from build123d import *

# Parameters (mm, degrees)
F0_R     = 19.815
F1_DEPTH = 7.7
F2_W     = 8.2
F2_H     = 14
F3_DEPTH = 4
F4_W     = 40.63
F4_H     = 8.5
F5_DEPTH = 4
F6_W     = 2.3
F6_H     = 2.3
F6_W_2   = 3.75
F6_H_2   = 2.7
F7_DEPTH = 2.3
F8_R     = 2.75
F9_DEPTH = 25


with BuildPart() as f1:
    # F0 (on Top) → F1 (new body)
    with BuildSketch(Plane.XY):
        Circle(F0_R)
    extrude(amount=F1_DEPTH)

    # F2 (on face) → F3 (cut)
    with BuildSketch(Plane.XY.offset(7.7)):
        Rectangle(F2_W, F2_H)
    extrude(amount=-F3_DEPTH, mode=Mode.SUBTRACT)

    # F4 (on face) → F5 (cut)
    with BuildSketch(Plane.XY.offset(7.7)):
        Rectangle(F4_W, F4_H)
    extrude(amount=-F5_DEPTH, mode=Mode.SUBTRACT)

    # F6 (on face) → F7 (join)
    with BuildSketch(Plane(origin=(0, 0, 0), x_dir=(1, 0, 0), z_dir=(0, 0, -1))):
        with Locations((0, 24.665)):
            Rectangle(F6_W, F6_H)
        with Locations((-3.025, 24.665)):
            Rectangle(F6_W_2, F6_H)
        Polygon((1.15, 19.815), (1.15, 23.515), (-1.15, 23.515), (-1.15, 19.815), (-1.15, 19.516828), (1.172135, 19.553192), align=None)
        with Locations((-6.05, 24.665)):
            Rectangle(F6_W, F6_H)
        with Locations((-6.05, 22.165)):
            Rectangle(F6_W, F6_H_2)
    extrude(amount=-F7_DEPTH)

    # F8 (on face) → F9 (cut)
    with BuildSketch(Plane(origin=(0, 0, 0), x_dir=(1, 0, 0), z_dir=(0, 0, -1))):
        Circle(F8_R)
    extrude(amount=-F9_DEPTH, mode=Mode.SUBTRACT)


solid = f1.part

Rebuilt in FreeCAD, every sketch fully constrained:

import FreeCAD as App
import Part
import Sketcher

V = App.Vector
Q = App.Units.Quantity


def add_polygon(sketch, points):
    """Adds a closed chain of lines whose ends are joined by coincident constraints."""
    first, n = sketch.GeometryCount, len(points)
    for a, b in zip(points, points[1:] + points[:1]):
        sketch.addGeometry(Part.LineSegment(App.Vector(*a, 0), App.Vector(*b, 0)), False)
    for i in range(n):
        sketch.addConstraint(Sketcher.Constraint("Coincident", first + i, 2, first + (i + 1) % n, 1))

doc = App.newDocument("Part")
body = doc.addObject("PartDesign::Body", "Body")

# Sketch on XY plane
sketch1 = body.newObject("Sketcher::SketchObject", "Sketch")
sketch1.AttachmentSupport = (doc.getObject("XY_Plane"), [""])
sketch1.MapMode = "FlatFace"
sketch1.addGeometry(Part.Circle(V(0, 0, 0), V(0, 0, 1), 19.815), False)
sketch1.addConstraint(Sketcher.Constraint("Coincident", 0, 3, -1, 1))
sketch1.addConstraint(Sketcher.Constraint("Diameter", 0, Q("39.63 mm")))
pad1 = body.newObject("PartDesign::Pad", "Pad")
pad1.Profile = sketch1
pad1.Length = 7.7

# Sketch on XY plane
sketch2 = body.newObject("Sketcher::SketchObject", "Sketch001")
sketch2.AttachmentSupport = (doc.getObject("XY_Plane"), [""])
sketch2.MapMode = "FlatFace"
sketch2.AttachmentOffset = App.Placement(V(0, 0, 7.7), App.Rotation())
add_polygon(sketch2, [(-4.1, 7), (-4.1, -7), (4.1, -7), (4.1, 7)])  # lines 0-3
sketch2.addConstraint(Sketcher.Constraint("Vertical", 0))
sketch2.addConstraint(Sketcher.Constraint("Horizontal", 1))
sketch2.addConstraint(Sketcher.Constraint("Vertical", 2))
sketch2.addConstraint(Sketcher.Constraint("Horizontal", 3))
sketch2.addConstraint(Sketcher.Constraint("Symmetric", 0, 2, 2, 2, -1, 1))
sketch2.addConstraint(Sketcher.Constraint("DistanceY", 0, 2, 0, 1, Q("14 mm")))
sketch2.addConstraint(Sketcher.Constraint("DistanceX", 1, 1, 1, 2, Q("8.2 mm")))
pocket1 = body.newObject("PartDesign::Pocket", "Pocket")
pocket1.Profile = sketch2
pocket1.Length = 4

# Sketch on XY plane
sketch3 = body.newObject("Sketcher::SketchObject", "Sketch002")
sketch3.AttachmentSupport = (doc.getObject("XY_Plane"), [""])
sketch3.MapMode = "FlatFace"
sketch3.AttachmentOffset = App.Placement(V(0, 0, 7.7), App.Rotation())
add_polygon(sketch3, [(-20.315, 4.25), (-20.315, -4.25), (20.315, -4.25), (20.315, 4.25)])  # lines 0-3
sketch3.addConstraint(Sketcher.Constraint("Vertical", 0))
sketch3.addConstraint(Sketcher.Constraint("Horizontal", 1))
sketch3.addConstraint(Sketcher.Constraint("Vertical", 2))
sketch3.addConstraint(Sketcher.Constraint("Horizontal", 3))
sketch3.addConstraint(Sketcher.Constraint("Symmetric", 0, 2, 2, 2, -1, 1))
sketch3.addConstraint(Sketcher.Constraint("DistanceY", 0, 2, 0, 1, Q("8.5 mm")))
sketch3.addConstraint(Sketcher.Constraint("DistanceX", 1, 1, 1, 2, Q("40.63 mm")))
pocket2 = body.newObject("PartDesign::Pocket", "Pocket001")
pocket2.Profile = sketch3
pocket2.Length = 4

# Sketch on XY plane
sketch4 = body.newObject("Sketcher::SketchObject", "Sketch003")
sketch4.AttachmentSupport = (doc.getObject("XY_Plane"), [""])
sketch4.MapMode = "FlatFace"
add_polygon(sketch4, [(1.15, -25.815), (-7.2, -25.815), (-7.2, -20.815), (-4.9, -20.815), (-4.9, -23.515), (-1.15, -23.515), (-1.15, -19.516828), (1.172135, -19.553192), (1.15, -19.815)])  # lines 0-8
sketch4.addConstraint(Sketcher.Constraint("Horizontal", 0))
sketch4.addConstraint(Sketcher.Constraint("Vertical", 1))
sketch4.addConstraint(Sketcher.Constraint("Horizontal", 2))
sketch4.addConstraint(Sketcher.Constraint("Vertical", 3))
sketch4.addConstraint(Sketcher.Constraint("Horizontal", 4))
sketch4.addConstraint(Sketcher.Constraint("Vertical", 5))
sketch4.addConstraint(Sketcher.Constraint("Vertical", 8))
sketch4.addConstraint(Sketcher.Constraint("DistanceY", 1, 1, 1, 2, Q("5 mm")))
sketch4.addConstraint(Sketcher.Constraint("DistanceY", 8, 2, 8, 1, Q("6 mm")))
sketch4.addConstraint(Sketcher.Constraint("DistanceX", 2, 1, 2, 2, Q("2.3 mm")))
sketch4.addConstraint(Sketcher.Constraint("DistanceY", 3, 2, 3, 1, Q("2.7 mm")))
sketch4.addConstraint(Sketcher.Constraint("DistanceX", 0, 2, 0, 1, Q("8.35 mm")))
sketch4.addConstraint(Sketcher.Constraint("DistanceX", 4, 1, 4, 2, Q("3.75 mm")))
sketch4.addConstraint(Sketcher.Constraint("DistanceX", 0, 2, -1, 1, Q("7.2 mm")))
sketch4.addConstraint(Sketcher.Constraint("DistanceY", 0, 2, -1, 1, Q("25.815 mm")))
sketch4.addConstraint(Sketcher.Constraint("Distance", 6, Q("2.32242 mm")))
sketch4.addConstraint(Sketcher.Constraint("DistanceY", 5, 1, 5, 2, Q("3.998172 mm")))
sketch4.addConstraint(Sketcher.Constraint("DistanceY", 6, 2, -1, 1, Q("19.553192 mm")))
pad2 = body.newObject("PartDesign::Pad", "Pad001")
pad2.Profile = sketch4
pad2.Length = 2.3

# Sketch on XY plane
sketch5 = body.newObject("Sketcher::SketchObject", "Sketch004")
sketch5.AttachmentSupport = (doc.getObject("XY_Plane"), [""])
sketch5.MapMode = "FlatFace"
sketch5.addGeometry(Part.Circle(V(0, 0, 0), V(0, 0, 1), 2.75), False)
sketch5.addConstraint(Sketcher.Constraint("Coincident", 0, 3, -1, 1))
sketch5.addConstraint(Sketcher.Constraint("Diameter", 0, Q("5.5 mm")))
pocket3 = body.newObject("PartDesign::Pocket", "Pocket002")
pocket3.Profile = sketch5
pocket3.Length = 25
pocket3.Reversed = True

doc.recompute()
